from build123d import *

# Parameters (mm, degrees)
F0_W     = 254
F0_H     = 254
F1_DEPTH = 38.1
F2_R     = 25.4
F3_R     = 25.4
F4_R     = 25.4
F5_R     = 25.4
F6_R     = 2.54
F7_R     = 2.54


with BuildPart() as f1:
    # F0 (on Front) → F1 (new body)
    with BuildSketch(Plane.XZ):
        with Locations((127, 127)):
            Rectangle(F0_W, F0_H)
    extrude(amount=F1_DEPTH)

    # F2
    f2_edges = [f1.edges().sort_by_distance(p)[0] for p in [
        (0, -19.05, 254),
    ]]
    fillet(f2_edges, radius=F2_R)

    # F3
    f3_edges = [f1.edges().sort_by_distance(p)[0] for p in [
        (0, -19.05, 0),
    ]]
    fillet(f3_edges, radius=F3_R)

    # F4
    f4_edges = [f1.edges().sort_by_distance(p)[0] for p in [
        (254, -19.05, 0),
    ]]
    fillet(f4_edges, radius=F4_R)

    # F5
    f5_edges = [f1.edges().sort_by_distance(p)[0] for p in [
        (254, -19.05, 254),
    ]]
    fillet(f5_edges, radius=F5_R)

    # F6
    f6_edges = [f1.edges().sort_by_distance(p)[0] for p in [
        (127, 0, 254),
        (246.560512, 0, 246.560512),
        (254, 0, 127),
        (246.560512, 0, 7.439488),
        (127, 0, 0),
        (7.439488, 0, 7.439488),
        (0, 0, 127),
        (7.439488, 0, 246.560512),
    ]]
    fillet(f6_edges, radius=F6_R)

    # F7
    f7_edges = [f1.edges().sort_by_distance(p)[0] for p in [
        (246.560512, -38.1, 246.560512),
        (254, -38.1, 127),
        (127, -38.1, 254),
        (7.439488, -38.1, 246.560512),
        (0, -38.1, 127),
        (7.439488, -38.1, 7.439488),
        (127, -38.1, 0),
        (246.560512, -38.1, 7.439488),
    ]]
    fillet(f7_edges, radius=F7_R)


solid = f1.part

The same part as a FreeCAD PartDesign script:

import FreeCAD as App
import Part
import Sketcher

V = App.Vector
Q = App.Units.Quantity


def edges_at(feature, points):
    """Names of the edges that pass closest to the given points."""
    edges = feature.Shape.Edges
    near = lambda p: min(range(len(edges)), key=lambda i: edges[i].distToShape(Part.Vertex(*p))[0])
    return sorted({f"Edge{near(p) + 1}" for p in points})


def add_polygon(sketch, points):
    """Adds a closed chain of lines whose ends are joined by coincident constraints."""
    first, n = sketch.GeometryCount, len(points)
    for a, b in zip(points, points[1:] + points[:1]):
        sketch.addGeometry(Part.LineSegment(App.Vector(*a, 0), App.Vector(*b, 0)), False)
    for i in range(n):
        sketch.addConstraint(Sketcher.Constraint("Coincident", first + i, 2, first + (i + 1) % n, 1))

doc = App.newDocument("Part")
params = doc.addObject("Spreadsheet::Sheet", "Params")
for row, (alias, value) in enumerate([
    ("sketch1_width", "10 in"),
    ("pad1_length", "1.5 in"),
    ("fillet_radius", "1 in"),
    ("fillet2_radius", "1 in"),
    ("fillet3_radius", "1 in"),
    ("fillet4_radius", "1 in"),
    ("fillet5_radius", "0.1 in"),
    ("fillet6_radius", "0.1 in"),
], start=1):
    params.set(f"A{row}", alias)
    params.set(f"B{row}", "=" + value)
    params.setAlias(f"B{row}", alias)

body = doc.addObject("PartDesign::Body", "Body")

sketch1 = body.newObject("Sketcher::SketchObject", "Sketch")
sketch1.AttachmentSupport = (doc.getObject("XZ_Plane"), [""])
sketch1.MapMode = "FlatFace"
add_polygon(sketch1, [(0, 254), (0, 0), (254, 0), (254, 254)])
sketch1.addConstraint([
    Sketcher.Constraint("Vertical", 0),
    Sketcher.Constraint("Horizontal", 1),
    Sketcher.Constraint("Vertical", 2),
    Sketcher.Constraint("Horizontal", 3),
    Sketcher.Constraint("Coincident", 0, 2, -1, 1),
    Sketcher.Constraint("Equal", 3, 0),
    Sketcher.Constraint("DistanceX", 1, 1, 1, 2, Q("10 in")),
])
sketch1.setExpression("Constraints[10]", "Params.sketch1_width")
pad1 = body.newObject("PartDesign::Pad", "Pad")
pad1.Profile = sketch1
pad1.setExpression("Length", "Params.pad1_length")
doc.recompute()

fillet = body.newObject("PartDesign::Fillet", "Fillet")
fillet.Base = (pad1, edges_at(pad1, [(0, -19.05, 254)]))
fillet.setExpression("Radius", "Params.fillet_radius")
doc.recompute()

fillet2 = body.newObject("PartDesign::Fillet", "Fillet001")
fillet2.Base = (fillet, edges_at(fillet, [(0, -19.05, 0)]))
fillet2.setExpression("Radius", "Params.fillet2_radius")
doc.recompute()

fillet3 = body.newObject("PartDesign::Fillet", "Fillet002")
fillet3.Base = (fillet2, edges_at(fillet2, [(254, -19.05, 0)]))
fillet3.setExpression("Radius", "Params.fillet3_radius")
doc.recompute()

fillet4 = body.newObject("PartDesign::Fillet", "Fillet003")
fillet4.Base = (fillet3, edges_at(fillet3, [(254, -19.05, 254)]))
fillet4.setExpression("Radius", "Params.fillet4_radius")
doc.recompute()

fillet5 = body.newObject("PartDesign::Fillet", "Fillet004")
fillet5.Base = (fillet4, edges_at(fillet4, [
    (127, 0, 254),
    (246.561, 0, 246.561),
    (254, 0, 127),
    (246.561, 0, 7.439),
    (127, 0, 0),
    (7.439, 0, 7.439),
    (0, 0, 127),
    (7.439, 0, 246.561),
]))
fillet5.setExpression("Radius", "Params.fillet5_radius")
doc.recompute()

fillet6 = body.newObject("PartDesign::Fillet", "Fillet005")
fillet6.Base = (fillet5, edges_at(fillet5, [
    (246.561, -38.1, 246.561),
    (254, -38.1, 127),
    (127, -38.1, 254),
    (7.439, -38.1, 246.561),
    (0, -38.1, 127),
    (7.439, -38.1, 7.439),
    (127, -38.1, 0),
    (246.561, -38.1, 7.439),
]))
fillet6.setExpression("Radius", "Params.fillet6_radius")

doc.recompute()
